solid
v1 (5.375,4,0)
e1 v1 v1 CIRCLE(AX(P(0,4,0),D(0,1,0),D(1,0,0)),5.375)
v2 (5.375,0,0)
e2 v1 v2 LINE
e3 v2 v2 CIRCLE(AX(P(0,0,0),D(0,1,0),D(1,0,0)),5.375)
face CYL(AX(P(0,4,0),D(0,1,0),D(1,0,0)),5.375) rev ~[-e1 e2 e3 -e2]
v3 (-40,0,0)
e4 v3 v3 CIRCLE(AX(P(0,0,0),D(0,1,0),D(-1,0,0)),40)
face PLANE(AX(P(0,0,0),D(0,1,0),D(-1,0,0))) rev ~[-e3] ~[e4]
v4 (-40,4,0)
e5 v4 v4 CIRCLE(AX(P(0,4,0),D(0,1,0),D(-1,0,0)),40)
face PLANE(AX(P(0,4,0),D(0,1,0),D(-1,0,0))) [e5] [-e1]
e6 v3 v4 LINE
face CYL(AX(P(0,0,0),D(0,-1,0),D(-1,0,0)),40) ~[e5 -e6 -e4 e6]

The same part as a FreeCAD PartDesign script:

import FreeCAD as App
import Part
import Sketcher
Q = App.Units.Quantity

doc = App.newDocument("Part")
body = doc.addObject("PartDesign::Body", "Body")

sketch1 = body.newObject("Sketcher::SketchObject", "Sketch")
sketch1.AttachmentSupport = (doc.getObject("XZ_Plane"), [""])
sketch1.MapMode = "FlatFace"
sketch1.addGeometry(Part.Circle(App.Vector(0, 0, 0), App.Vector(0, 0, 1), 40), False)
sketch1.addConstraint([
    Sketcher.Constraint("Coincident", 0, 3, -1, 1),
    Sketcher.Constraint("Diameter", 0, Q("80 mm")),
])
pad1 = body.newObject("PartDesign::Pad", "Pad")
pad1.Profile = sketch1
pad1.Length = 4
pad1.Reversed = True

sketch2 = body.newObject("Sketcher::SketchObject", "Sketch001")
sketch2.AttachmentSupport = (doc.getObject("XZ_Plane"), [""])
sketch2.MapMode = "FlatFace"
sketch2.AttachmentOffset = App.Placement(App.Vector(0, 0, -4), App.Rotation())
sketch2.addGeometry(Part.Circle(App.Vector(0, 0, 0), App.Vector(0, 0, 1), 5.375), False)
sketch2.addConstraint([
    Sketcher.Constraint("Coincident", 0, 3, -1, 1),
    Sketcher.Constraint("Diameter", 0, Q("10.75 mm")),
])
pocket1 = body.newObject("PartDesign::Pocket", "Pocket")
pocket1.Profile = sketch2
pocket1.Type = "ThroughAll"
pocket1.Reversed = True

doc.recompute()
